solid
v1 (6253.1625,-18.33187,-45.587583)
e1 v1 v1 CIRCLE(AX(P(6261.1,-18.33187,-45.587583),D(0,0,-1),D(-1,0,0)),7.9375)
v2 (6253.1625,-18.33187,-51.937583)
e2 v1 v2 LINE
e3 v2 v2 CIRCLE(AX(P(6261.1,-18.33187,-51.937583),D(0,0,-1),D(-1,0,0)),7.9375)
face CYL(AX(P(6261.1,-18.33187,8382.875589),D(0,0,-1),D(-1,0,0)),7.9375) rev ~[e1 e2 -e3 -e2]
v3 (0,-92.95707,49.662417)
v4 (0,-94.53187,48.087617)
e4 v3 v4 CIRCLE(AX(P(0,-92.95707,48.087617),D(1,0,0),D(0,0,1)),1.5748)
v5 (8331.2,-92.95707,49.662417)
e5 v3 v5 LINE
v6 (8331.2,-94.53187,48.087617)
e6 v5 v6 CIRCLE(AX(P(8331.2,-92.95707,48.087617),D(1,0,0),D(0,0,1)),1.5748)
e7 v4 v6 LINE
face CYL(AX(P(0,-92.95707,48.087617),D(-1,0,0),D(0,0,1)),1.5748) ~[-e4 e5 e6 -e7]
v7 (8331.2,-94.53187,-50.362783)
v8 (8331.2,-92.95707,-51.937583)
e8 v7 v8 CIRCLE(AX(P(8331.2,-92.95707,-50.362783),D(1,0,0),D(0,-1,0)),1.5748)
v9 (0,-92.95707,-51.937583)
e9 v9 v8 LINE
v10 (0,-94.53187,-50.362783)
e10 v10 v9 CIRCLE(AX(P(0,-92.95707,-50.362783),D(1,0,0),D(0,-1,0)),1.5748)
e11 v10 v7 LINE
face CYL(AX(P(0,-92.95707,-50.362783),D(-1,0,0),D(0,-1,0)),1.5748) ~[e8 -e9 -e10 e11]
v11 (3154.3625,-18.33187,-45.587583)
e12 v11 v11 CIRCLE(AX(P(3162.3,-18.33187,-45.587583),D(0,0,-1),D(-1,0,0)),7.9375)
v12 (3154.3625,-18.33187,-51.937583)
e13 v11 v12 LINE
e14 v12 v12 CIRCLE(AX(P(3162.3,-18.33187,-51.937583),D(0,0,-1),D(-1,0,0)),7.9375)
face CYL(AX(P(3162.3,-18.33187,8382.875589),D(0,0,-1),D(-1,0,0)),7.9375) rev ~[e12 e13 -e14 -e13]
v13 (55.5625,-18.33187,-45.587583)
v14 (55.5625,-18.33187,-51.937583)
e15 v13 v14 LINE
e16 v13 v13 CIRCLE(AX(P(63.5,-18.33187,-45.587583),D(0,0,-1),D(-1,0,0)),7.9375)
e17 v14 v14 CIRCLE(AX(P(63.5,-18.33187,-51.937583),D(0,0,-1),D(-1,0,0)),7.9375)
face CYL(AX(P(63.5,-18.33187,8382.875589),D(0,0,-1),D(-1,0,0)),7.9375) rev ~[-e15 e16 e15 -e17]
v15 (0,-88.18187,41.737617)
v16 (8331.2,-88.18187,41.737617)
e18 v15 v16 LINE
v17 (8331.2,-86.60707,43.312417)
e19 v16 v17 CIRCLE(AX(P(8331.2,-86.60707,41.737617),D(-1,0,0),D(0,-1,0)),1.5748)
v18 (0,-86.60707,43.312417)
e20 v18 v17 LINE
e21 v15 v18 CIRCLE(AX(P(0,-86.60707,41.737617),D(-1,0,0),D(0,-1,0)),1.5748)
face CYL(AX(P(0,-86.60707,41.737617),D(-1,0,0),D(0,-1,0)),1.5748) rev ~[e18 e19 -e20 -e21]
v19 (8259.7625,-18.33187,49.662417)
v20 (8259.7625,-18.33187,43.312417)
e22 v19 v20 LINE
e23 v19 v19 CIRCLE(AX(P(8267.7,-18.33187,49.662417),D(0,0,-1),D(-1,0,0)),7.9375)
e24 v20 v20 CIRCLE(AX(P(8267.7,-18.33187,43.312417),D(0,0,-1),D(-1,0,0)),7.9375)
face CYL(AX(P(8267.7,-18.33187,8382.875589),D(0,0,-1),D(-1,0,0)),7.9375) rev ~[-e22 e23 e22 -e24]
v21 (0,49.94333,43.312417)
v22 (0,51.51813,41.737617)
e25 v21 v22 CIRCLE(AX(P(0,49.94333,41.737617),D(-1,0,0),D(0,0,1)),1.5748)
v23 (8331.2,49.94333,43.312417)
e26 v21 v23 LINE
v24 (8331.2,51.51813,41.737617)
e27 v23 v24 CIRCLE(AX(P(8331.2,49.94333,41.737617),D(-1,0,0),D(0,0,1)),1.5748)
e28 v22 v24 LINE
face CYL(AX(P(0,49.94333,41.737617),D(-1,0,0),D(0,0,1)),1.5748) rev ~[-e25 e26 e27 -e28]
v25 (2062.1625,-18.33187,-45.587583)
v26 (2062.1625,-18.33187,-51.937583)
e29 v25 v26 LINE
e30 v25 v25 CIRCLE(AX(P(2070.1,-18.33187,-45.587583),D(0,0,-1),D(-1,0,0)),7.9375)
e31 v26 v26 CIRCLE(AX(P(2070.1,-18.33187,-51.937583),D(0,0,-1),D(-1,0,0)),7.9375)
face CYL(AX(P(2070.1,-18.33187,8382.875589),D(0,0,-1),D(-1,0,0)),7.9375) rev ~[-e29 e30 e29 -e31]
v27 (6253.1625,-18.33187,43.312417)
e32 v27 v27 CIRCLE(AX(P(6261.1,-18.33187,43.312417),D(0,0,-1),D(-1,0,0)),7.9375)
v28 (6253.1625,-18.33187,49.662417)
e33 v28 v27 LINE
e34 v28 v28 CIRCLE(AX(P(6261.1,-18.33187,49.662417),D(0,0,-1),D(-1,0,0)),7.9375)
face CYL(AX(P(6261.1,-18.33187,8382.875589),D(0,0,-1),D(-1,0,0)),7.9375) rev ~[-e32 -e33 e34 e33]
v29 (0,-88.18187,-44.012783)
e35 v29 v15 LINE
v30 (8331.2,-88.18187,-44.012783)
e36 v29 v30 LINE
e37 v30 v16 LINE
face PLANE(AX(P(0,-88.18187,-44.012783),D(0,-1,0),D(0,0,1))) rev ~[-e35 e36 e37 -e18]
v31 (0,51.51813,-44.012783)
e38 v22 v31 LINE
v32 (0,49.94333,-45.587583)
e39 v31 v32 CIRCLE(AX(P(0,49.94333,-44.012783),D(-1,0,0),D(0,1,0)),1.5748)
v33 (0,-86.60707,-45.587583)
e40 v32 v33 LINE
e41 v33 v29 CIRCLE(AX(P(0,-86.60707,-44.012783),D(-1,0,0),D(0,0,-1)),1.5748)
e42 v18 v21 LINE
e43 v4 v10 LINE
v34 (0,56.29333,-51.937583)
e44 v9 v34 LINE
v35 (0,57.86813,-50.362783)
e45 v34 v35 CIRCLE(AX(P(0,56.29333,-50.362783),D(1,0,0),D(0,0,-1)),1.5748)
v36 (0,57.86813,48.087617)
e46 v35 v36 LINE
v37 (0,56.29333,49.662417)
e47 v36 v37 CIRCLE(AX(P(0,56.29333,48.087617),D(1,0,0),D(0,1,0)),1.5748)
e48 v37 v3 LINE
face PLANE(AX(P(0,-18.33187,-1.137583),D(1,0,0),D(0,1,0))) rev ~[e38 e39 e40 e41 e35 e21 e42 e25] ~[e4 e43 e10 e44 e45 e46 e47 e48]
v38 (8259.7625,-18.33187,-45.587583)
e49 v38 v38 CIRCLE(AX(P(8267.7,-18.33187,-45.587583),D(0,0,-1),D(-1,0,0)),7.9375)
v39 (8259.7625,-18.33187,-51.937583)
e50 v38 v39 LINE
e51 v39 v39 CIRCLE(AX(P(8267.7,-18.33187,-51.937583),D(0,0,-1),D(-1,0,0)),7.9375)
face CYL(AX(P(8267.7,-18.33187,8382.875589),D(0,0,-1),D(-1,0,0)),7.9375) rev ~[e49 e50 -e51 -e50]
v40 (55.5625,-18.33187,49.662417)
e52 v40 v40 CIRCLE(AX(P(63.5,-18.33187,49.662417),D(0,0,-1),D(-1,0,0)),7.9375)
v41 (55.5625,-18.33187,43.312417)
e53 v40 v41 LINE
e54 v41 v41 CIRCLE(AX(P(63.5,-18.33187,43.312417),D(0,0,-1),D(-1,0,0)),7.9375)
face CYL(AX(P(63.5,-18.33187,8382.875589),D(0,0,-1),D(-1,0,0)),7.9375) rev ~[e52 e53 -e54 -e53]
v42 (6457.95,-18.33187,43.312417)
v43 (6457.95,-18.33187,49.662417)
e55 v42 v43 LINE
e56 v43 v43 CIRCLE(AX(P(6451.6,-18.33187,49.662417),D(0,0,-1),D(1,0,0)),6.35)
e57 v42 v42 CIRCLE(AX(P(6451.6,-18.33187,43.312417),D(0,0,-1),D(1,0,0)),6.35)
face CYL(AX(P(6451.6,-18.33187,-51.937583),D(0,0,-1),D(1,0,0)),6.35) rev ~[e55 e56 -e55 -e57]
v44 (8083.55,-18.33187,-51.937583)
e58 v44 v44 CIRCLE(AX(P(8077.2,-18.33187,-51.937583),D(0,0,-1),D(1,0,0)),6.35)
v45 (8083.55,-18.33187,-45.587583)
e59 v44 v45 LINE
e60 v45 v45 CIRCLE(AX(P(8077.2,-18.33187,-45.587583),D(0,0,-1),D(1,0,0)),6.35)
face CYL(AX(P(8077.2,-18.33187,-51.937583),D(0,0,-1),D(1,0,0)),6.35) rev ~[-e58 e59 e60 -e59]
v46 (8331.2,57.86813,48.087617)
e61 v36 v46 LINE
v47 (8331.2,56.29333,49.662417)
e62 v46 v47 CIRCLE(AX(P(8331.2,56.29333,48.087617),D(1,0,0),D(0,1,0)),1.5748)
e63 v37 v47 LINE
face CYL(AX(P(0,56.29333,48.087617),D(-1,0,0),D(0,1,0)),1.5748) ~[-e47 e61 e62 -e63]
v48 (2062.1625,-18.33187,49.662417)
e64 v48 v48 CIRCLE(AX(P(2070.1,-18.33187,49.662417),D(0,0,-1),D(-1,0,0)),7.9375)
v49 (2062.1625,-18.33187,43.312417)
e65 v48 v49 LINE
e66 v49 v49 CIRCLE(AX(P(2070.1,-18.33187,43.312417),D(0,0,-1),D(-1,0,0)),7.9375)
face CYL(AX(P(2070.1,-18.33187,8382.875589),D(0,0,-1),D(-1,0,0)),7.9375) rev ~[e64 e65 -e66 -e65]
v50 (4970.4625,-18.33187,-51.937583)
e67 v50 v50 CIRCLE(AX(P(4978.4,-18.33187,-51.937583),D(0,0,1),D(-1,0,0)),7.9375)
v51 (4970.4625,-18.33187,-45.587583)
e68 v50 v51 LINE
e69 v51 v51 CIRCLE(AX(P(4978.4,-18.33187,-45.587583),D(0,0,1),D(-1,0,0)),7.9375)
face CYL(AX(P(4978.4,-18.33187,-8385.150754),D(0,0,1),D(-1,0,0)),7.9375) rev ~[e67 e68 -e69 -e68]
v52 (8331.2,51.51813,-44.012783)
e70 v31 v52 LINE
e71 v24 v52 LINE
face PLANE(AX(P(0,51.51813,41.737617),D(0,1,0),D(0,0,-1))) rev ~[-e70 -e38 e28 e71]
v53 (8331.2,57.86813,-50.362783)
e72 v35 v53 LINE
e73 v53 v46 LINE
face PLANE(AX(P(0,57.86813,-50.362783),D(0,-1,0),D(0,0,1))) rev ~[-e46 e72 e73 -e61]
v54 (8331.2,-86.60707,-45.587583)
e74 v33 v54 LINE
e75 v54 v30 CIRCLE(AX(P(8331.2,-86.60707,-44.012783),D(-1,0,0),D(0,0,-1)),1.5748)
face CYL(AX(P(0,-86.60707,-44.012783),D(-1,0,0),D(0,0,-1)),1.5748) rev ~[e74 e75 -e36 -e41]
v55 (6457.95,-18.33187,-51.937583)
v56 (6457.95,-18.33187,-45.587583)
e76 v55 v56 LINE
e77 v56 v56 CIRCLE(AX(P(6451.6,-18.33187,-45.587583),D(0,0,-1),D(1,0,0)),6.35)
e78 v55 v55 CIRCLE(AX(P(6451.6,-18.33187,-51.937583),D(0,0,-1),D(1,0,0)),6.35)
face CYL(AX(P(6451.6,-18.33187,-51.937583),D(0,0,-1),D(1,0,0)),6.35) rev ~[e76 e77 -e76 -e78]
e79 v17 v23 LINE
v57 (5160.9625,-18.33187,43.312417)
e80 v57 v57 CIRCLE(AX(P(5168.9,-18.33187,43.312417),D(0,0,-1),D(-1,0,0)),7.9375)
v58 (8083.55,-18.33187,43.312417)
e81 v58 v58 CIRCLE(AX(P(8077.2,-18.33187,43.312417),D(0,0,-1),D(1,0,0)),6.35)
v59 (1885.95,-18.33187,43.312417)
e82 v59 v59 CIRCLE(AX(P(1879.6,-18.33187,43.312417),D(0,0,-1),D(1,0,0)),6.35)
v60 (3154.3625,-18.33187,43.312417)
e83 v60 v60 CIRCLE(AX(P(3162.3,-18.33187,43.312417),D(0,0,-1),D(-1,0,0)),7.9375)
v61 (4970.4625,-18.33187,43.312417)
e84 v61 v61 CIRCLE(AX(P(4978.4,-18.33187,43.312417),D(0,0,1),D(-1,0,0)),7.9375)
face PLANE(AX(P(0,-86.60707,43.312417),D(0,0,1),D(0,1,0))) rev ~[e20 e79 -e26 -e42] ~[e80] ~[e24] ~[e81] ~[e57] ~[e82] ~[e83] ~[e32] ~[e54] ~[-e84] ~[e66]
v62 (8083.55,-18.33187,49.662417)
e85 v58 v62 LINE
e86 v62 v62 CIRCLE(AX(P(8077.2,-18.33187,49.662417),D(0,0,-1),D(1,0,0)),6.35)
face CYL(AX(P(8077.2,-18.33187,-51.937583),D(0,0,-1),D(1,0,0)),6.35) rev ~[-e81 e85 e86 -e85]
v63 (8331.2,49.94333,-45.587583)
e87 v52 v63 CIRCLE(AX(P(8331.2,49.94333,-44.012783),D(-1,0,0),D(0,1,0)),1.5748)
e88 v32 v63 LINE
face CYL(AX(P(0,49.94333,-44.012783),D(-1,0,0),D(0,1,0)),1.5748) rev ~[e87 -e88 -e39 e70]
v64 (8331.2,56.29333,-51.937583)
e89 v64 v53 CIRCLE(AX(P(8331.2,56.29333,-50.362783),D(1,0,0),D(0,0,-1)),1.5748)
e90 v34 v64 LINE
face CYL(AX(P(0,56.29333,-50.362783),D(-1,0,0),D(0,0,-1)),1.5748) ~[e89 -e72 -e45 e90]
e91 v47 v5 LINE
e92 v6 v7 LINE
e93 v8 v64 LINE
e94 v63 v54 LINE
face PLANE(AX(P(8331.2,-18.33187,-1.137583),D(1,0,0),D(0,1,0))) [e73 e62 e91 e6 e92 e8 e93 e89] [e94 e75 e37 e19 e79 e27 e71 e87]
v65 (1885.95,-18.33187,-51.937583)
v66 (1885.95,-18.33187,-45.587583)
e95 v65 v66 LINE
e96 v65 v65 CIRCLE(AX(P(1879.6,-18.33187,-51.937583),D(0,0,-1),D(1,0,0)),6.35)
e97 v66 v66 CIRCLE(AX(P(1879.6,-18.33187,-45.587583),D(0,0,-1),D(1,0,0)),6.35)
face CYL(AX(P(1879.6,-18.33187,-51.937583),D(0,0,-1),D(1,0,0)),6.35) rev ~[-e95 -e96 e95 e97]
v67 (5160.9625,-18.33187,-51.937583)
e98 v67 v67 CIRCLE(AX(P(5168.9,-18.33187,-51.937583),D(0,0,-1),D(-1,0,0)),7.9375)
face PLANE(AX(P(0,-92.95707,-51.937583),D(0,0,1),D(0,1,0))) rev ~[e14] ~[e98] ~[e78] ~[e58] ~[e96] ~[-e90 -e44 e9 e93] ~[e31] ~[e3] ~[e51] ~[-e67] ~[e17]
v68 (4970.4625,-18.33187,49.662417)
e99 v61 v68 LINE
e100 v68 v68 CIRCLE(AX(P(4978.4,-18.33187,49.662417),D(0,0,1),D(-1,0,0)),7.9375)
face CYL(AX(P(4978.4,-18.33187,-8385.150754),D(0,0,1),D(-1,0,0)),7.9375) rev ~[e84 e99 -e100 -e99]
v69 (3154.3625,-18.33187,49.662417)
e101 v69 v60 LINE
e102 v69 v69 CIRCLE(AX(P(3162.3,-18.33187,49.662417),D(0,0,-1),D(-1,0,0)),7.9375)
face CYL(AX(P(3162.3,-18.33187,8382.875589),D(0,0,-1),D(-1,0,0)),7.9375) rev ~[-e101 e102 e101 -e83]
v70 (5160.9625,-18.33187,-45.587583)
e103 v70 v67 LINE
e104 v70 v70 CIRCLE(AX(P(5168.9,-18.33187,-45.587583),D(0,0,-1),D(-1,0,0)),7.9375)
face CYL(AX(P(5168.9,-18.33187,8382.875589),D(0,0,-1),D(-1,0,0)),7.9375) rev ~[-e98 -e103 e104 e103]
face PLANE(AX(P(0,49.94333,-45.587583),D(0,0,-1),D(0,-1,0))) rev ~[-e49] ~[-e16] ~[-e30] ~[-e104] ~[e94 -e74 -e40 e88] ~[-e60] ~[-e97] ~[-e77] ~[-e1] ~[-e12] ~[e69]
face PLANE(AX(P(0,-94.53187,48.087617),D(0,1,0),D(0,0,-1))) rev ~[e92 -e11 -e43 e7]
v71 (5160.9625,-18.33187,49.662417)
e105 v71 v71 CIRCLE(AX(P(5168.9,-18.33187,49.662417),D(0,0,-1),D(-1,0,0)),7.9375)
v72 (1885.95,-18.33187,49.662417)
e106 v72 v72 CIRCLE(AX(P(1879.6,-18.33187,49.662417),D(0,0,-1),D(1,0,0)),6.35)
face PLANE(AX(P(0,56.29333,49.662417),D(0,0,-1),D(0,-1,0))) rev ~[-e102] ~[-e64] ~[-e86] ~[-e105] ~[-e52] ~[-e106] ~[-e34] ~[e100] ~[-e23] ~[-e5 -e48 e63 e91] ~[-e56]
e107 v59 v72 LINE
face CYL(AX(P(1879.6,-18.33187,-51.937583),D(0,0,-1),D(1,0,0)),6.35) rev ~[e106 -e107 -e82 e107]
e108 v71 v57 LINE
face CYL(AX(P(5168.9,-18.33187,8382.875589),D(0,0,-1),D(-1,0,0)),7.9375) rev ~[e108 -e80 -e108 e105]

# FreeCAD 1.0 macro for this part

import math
import FreeCAD as App
import Part
import Sketcher
from FreeCAD import Vector
Q = App.Units.Quantity

doc = App.newDocument("Part")
body = doc.addObject("PartDesign::Body", "Body")

sketch1 = doc.addObject("Sketcher::SketchObject", "Sketch")
body.addObject(sketch1)
sketch1.AttachmentSupport = (doc.YZ_Plane, [""])
sketch1.MapMode = "FlatFace"
sketch1.addGeometry([
    Part.LineSegment(Vector(-92.95707, -51.937583, 0), Vector(56.29333, -51.937583, 0)),
    Part.ArcOfCircle(Part.Circle(Vector(56.29333, -50.362783, 0), Vector(0, 0, 1), 1.5748), math.radians(-90), math.radians(0)),
    Part.LineSegment(Vector(57.86813, -50.362783, 0), Vector(57.86813, 48.087617, 0)),
    Part.ArcOfCircle(Part.Circle(Vector(56.29333, 48.087617, 0), Vector(0, 0, 1), 1.5748), math.radians(0), math.radians(90)),
    Part.LineSegment(Vector(56.29333, 49.662417, 0), Vector(-92.95707, 49.662417, 0)),
    Part.ArcOfCircle(Part.Circle(Vector(-92.95707, 48.087617, 0), Vector(0, 0, 1), 1.5748), math.radians(90), math.radians(180)),
    Part.LineSegment(Vector(-94.53187, 48.087617, 0), Vector(-94.53187, -50.362783, 0)),
    Part.ArcOfCircle(Part.Circle(Vector(-92.95707, -50.362783, 0), Vector(0, 0, 1), 1.5748), math.radians(180), math.radians(270)),
    Part.LineSegment(Vector(-88.18187, -44.012783, 0), Vector(-88.18187, 41.737617, 0)),
    Part.ArcOfCircle(Part.Circle(Vector(-86.60707, 41.737617, 0), Vector(0, 0, 1), 1.5748), math.radians(90), math.radians(180)),
    Part.LineSegment(Vector(-86.60707, 43.312417, 0), Vector(49.94333, 43.312417, 0)),
    Part.ArcOfCircle(Part.Circle(Vector(49.94333, 41.737617, 0), Vector(0, 0, 1), 1.5748), math.radians(0), math.radians(90)),
    Part.LineSegment(Vector(51.51813, 41.737617, 0), Vector(51.51813, -44.012783, 0)),
    Part.ArcOfCircle(Part.Circle(Vector(49.94333, -44.012783, 0), Vector(0, 0, 1), 1.5748), math.radians(-90), math.radians(0)),
    Part.LineSegment(Vector(49.94333, -45.587583, 0), Vector(-86.60707, -45.587583, 0)),
    Part.ArcOfCircle(Part.Circle(Vector(-86.60707, -44.012783, 0), Vector(0, 0, 1), 1.5748), math.radians(180), math.radians(270)),
], False)
sketch1.addConstraint([
    Sketcher.Constraint("Tangent", 0, 2, 1, 1),
    Sketcher.Constraint("Tangent", 1, 2, 2, 1),
    Sketcher.Constraint("Tangent", 2, 2, 3, 1),
    Sketcher.Constraint("Tangent", 3, 2, 4, 1),
    Sketcher.Constraint("Tangent", 4, 2, 5, 1),
    Sketcher.Constraint("Tangent", 5, 2, 6, 1),
    Sketcher.Constraint("Tangent", 6, 2, 7, 1),
    Sketcher.Constraint("Tangent", 7, 2, 0, 1),
    Sketcher.Constraint("Tangent", 8, 2, 9, 2),
    Sketcher.Constraint("Tangent", 9, 1, 10, 1),
    Sketcher.Constraint("Tangent", 10, 2, 11, 2),
    Sketcher.Constraint("Tangent", 11, 1, 12, 1),
    Sketcher.Constraint("Tangent", 12, 2, 13, 2),
    Sketcher.Constraint("Tangent", 13, 1, 14, 1),
    Sketcher.Constraint("Tangent", 14, 2, 15, 2),
    Sketcher.Constraint("Tangent", 15, 1, 8, 1),
    Sketcher.Constraint("Horizontal", 0),
    Sketcher.Constraint("Vertical", 2),
    Sketcher.Constraint("Horizontal", 4),
    Sketcher.Constraint("Vertical", 6),
    Sketcher.Constraint("Vertical", 8),
    Sketcher.Constraint("Horizontal", 10),
    Sketcher.Constraint("Vertical", 12),
    Sketcher.Constraint("Horizontal", 14),
    Sketcher.Constraint("Equal", 1, 3),
    Sketcher.Constraint("Equal", 3, 5),
    Sketcher.Constraint("Equal", 5, 7),
    Sketcher.Constraint("Equal", 7, 9),
    Sketcher.Constraint("Equal", 9, 11),
    Sketcher.Constraint("Equal", 11, 13),
    Sketcher.Constraint("Equal", 13, 15),
    Sketcher.Constraint("Radius", 1, Q("0.062 in")),
    Sketcher.Constraint("DistanceX", 0, 1, 0, 2, Q("5.876 in")),
    Sketcher.Constraint("DistanceX", 10, 1, 10, 2, Q("5.376 in")),
    Sketcher.Constraint("DistanceY", 2, 1, 2, 2, Q("3.876 in")),
    Sketcher.Constraint("DistanceY", 8, 1, 8, 2, Q("3.376 in")),
    Sketcher.Constraint("DistanceX", 5, 3, 9, 3, Q("0.25 in")),
    Sketcher.Constraint("DistanceY", 9, 3, 5, 3, Q("0.25 in")),
    Sketcher.Constraint("DistanceX", -1, 1, 1, 3, 56.29333),
    Sketcher.Constraint("DistanceY", 1, 3, -1, 1, 50.362783),
])
pad1 = doc.addObject("PartDesign::Pad", "Pad")
body.addObject(pad1)
pad1.Profile = sketch1
pad1.Length = Q("328 in")

sketch2 = doc.addObject("Sketcher::SketchObject", "Sketch001")
body.addObject(sketch2)
sketch2.AttachmentSupport = (doc.XY_Plane, [""])
sketch2.MapMode = "FlatFace"
sketch2.AttachmentOffset = App.Placement(Vector(0, 0, -51.937583), App.Rotation())
sketch2.addGeometry([
    Part.Circle(Vector(8077.2, -18.33187, 0), Vector(0, 0, 1), 6.35),
    Part.Circle(Vector(6451.6, -18.33187, 0), Vector(0, 0, 1), 6.35),
    Part.Circle(Vector(1879.6, -18.33187, 0), Vector(0, 0, 1), 6.35),
], False)
sketch2.addConstraint([
    Sketcher.Constraint("Equal", 0, 1),
    Sketcher.Constraint("Equal", 1, 2),
    Sketcher.Constraint("Horizontal", 0, 3, 1, 3),
    Sketcher.Constraint("Horizontal", 1, 3, 2, 3),
    Sketcher.Constraint("Diameter", 0, Q("0.5 in")),
    Sketcher.Constraint("DistanceX", -1, 1, 0, 3, Q("318 in")),
    Sketcher.Constraint("DistanceX", -1, 1, 1, 3, Q("254 in")),
    Sketcher.Constraint("DistanceX", -1, 1, 2, 3, Q("74 in")),
    Sketcher.Constraint("DistanceY", 0, 3, -1, 1, 18.33187),
])
pocket1 = doc.addObject("PartDesign::Pocket", "Pocket")
body.addObject(pocket1)
pocket1.Profile = sketch2
pocket1.Type = "ThroughAll"
pocket1.Reversed = True

sketch3 = doc.addObject("Sketcher::SketchObject", "Sketch002")
body.addObject(sketch3)
sketch3.AttachmentSupport = (doc.XY_Plane, [""])
sketch3.MapMode = "FlatFace"
sketch3.AttachmentOffset = App.Placement(Vector(0, 0, 49.662417), App.Rotation())
sketch3.addGeometry([
    Part.Circle(Vector(6261.1, -18.33187, 0), Vector(0, 0, 1), 7.9375),
    Part.Circle(Vector(8267.7, -18.33187, 0), Vector(0, 0, 1), 7.9375),
    Part.Circle(Vector(3162.3, -18.33187, 0), Vector(0, 0, 1), 7.9375),
    Part.Circle(Vector(2070.1, -18.33187, 0), Vector(0, 0, 1), 7.9375),
    Part.Circle(Vector(63.5, -18.33187, 0), Vector(0, 0, 1), 7.9375),
    Part.Circle(Vector(5168.9, -18.33187, 0), Vector(0, 0, 1), 7.9375),
], False)
sketch3.addConstraint([
    Sketcher.Constraint("Equal", 0, 1),
    Sketcher.Constraint("Equal", 1, 2),
    Sketcher.Constraint("Equal", 2, 3),
    Sketcher.Constraint("Equal", 3, 4),
    Sketcher.Constraint("Equal", 4, 5),
    Sketcher.Constraint("Horizontal", 0, 3, 1, 3),
    Sketcher.Constraint("Horizontal", 1, 3, 2, 3),
    Sketcher.Constraint("Horizontal", 2, 3, 3, 3),
    Sketcher.Constraint("Horizontal", 3, 3, 4, 3),
    Sketcher.Constraint("Horizontal", 4, 3, 5, 3),
    Sketcher.Constraint("Diameter", 0, Q("0.625 in")),
    Sketcher.Constraint("DistanceX", 0, 3, 1, 3, Q("79 in")),
    Sketcher.Constraint("DistanceX", 2, 3, 0, 3, Q("122 in")),
    Sketcher.Constraint("DistanceX", 3, 3, 2, 3, Q("43 in")),
    Sketcher.Constraint("DistanceX", 4, 3, 3, 3, Q("79 in")),
    Sketcher.Constraint("DistanceX", 5, 3, 0, 3, Q("43 in")),
    Sketcher.Constraint("DistanceX", -1, 1, 0, 3, Q("246.5 in")),
    Sketcher.Constraint("DistanceY", 0, 3, -1, 1, 18.33187),
])
doc.recompute()
hole = doc.addObject("PartDesign::Hole", "Hole")
body.addObject(hole)
hole.Profile = sketch3
hole.ThreadType = "None"
hole.Diameter = Q("0.625 in")
hole.DepthType = "ThroughAll"

sketch4 = doc.addObject("Sketcher::SketchObject", "Sketch003")
body.addObject(sketch4)
sketch4.AttachmentSupport = (doc.XY_Plane, [""])
sketch4.MapMode = "FlatFace"
sketch4.AttachmentOffset = App.Placement(Vector(0, 0, -51.937583), App.Rotation())
sketch4.addGeometry(Part.Circle(Vector(4978.4, -18.33187, 0), Vector(0, 0, 1), 7.9375), False)
sketch4.addConstraint([
    Sketcher.Constraint("Diameter", 0, Q("0.625 in")),
    Sketcher.Constraint("DistanceX", -1, 1, 0, 3, Q("196 in")),
    Sketcher.Constraint("DistanceY", 0, 3, -1, 1, 18.33187),
])
doc.recompute()
hole2 = doc.addObject("PartDesign::Hole", "Hole001")
body.addObject(hole2)
hole2.Profile = sketch4
hole2.ThreadType = "None"
hole2.Diameter = Q("0.625 in")
hole2.DepthType = "ThroughAll"
hole2.Reversed = True

doc.recompute()
